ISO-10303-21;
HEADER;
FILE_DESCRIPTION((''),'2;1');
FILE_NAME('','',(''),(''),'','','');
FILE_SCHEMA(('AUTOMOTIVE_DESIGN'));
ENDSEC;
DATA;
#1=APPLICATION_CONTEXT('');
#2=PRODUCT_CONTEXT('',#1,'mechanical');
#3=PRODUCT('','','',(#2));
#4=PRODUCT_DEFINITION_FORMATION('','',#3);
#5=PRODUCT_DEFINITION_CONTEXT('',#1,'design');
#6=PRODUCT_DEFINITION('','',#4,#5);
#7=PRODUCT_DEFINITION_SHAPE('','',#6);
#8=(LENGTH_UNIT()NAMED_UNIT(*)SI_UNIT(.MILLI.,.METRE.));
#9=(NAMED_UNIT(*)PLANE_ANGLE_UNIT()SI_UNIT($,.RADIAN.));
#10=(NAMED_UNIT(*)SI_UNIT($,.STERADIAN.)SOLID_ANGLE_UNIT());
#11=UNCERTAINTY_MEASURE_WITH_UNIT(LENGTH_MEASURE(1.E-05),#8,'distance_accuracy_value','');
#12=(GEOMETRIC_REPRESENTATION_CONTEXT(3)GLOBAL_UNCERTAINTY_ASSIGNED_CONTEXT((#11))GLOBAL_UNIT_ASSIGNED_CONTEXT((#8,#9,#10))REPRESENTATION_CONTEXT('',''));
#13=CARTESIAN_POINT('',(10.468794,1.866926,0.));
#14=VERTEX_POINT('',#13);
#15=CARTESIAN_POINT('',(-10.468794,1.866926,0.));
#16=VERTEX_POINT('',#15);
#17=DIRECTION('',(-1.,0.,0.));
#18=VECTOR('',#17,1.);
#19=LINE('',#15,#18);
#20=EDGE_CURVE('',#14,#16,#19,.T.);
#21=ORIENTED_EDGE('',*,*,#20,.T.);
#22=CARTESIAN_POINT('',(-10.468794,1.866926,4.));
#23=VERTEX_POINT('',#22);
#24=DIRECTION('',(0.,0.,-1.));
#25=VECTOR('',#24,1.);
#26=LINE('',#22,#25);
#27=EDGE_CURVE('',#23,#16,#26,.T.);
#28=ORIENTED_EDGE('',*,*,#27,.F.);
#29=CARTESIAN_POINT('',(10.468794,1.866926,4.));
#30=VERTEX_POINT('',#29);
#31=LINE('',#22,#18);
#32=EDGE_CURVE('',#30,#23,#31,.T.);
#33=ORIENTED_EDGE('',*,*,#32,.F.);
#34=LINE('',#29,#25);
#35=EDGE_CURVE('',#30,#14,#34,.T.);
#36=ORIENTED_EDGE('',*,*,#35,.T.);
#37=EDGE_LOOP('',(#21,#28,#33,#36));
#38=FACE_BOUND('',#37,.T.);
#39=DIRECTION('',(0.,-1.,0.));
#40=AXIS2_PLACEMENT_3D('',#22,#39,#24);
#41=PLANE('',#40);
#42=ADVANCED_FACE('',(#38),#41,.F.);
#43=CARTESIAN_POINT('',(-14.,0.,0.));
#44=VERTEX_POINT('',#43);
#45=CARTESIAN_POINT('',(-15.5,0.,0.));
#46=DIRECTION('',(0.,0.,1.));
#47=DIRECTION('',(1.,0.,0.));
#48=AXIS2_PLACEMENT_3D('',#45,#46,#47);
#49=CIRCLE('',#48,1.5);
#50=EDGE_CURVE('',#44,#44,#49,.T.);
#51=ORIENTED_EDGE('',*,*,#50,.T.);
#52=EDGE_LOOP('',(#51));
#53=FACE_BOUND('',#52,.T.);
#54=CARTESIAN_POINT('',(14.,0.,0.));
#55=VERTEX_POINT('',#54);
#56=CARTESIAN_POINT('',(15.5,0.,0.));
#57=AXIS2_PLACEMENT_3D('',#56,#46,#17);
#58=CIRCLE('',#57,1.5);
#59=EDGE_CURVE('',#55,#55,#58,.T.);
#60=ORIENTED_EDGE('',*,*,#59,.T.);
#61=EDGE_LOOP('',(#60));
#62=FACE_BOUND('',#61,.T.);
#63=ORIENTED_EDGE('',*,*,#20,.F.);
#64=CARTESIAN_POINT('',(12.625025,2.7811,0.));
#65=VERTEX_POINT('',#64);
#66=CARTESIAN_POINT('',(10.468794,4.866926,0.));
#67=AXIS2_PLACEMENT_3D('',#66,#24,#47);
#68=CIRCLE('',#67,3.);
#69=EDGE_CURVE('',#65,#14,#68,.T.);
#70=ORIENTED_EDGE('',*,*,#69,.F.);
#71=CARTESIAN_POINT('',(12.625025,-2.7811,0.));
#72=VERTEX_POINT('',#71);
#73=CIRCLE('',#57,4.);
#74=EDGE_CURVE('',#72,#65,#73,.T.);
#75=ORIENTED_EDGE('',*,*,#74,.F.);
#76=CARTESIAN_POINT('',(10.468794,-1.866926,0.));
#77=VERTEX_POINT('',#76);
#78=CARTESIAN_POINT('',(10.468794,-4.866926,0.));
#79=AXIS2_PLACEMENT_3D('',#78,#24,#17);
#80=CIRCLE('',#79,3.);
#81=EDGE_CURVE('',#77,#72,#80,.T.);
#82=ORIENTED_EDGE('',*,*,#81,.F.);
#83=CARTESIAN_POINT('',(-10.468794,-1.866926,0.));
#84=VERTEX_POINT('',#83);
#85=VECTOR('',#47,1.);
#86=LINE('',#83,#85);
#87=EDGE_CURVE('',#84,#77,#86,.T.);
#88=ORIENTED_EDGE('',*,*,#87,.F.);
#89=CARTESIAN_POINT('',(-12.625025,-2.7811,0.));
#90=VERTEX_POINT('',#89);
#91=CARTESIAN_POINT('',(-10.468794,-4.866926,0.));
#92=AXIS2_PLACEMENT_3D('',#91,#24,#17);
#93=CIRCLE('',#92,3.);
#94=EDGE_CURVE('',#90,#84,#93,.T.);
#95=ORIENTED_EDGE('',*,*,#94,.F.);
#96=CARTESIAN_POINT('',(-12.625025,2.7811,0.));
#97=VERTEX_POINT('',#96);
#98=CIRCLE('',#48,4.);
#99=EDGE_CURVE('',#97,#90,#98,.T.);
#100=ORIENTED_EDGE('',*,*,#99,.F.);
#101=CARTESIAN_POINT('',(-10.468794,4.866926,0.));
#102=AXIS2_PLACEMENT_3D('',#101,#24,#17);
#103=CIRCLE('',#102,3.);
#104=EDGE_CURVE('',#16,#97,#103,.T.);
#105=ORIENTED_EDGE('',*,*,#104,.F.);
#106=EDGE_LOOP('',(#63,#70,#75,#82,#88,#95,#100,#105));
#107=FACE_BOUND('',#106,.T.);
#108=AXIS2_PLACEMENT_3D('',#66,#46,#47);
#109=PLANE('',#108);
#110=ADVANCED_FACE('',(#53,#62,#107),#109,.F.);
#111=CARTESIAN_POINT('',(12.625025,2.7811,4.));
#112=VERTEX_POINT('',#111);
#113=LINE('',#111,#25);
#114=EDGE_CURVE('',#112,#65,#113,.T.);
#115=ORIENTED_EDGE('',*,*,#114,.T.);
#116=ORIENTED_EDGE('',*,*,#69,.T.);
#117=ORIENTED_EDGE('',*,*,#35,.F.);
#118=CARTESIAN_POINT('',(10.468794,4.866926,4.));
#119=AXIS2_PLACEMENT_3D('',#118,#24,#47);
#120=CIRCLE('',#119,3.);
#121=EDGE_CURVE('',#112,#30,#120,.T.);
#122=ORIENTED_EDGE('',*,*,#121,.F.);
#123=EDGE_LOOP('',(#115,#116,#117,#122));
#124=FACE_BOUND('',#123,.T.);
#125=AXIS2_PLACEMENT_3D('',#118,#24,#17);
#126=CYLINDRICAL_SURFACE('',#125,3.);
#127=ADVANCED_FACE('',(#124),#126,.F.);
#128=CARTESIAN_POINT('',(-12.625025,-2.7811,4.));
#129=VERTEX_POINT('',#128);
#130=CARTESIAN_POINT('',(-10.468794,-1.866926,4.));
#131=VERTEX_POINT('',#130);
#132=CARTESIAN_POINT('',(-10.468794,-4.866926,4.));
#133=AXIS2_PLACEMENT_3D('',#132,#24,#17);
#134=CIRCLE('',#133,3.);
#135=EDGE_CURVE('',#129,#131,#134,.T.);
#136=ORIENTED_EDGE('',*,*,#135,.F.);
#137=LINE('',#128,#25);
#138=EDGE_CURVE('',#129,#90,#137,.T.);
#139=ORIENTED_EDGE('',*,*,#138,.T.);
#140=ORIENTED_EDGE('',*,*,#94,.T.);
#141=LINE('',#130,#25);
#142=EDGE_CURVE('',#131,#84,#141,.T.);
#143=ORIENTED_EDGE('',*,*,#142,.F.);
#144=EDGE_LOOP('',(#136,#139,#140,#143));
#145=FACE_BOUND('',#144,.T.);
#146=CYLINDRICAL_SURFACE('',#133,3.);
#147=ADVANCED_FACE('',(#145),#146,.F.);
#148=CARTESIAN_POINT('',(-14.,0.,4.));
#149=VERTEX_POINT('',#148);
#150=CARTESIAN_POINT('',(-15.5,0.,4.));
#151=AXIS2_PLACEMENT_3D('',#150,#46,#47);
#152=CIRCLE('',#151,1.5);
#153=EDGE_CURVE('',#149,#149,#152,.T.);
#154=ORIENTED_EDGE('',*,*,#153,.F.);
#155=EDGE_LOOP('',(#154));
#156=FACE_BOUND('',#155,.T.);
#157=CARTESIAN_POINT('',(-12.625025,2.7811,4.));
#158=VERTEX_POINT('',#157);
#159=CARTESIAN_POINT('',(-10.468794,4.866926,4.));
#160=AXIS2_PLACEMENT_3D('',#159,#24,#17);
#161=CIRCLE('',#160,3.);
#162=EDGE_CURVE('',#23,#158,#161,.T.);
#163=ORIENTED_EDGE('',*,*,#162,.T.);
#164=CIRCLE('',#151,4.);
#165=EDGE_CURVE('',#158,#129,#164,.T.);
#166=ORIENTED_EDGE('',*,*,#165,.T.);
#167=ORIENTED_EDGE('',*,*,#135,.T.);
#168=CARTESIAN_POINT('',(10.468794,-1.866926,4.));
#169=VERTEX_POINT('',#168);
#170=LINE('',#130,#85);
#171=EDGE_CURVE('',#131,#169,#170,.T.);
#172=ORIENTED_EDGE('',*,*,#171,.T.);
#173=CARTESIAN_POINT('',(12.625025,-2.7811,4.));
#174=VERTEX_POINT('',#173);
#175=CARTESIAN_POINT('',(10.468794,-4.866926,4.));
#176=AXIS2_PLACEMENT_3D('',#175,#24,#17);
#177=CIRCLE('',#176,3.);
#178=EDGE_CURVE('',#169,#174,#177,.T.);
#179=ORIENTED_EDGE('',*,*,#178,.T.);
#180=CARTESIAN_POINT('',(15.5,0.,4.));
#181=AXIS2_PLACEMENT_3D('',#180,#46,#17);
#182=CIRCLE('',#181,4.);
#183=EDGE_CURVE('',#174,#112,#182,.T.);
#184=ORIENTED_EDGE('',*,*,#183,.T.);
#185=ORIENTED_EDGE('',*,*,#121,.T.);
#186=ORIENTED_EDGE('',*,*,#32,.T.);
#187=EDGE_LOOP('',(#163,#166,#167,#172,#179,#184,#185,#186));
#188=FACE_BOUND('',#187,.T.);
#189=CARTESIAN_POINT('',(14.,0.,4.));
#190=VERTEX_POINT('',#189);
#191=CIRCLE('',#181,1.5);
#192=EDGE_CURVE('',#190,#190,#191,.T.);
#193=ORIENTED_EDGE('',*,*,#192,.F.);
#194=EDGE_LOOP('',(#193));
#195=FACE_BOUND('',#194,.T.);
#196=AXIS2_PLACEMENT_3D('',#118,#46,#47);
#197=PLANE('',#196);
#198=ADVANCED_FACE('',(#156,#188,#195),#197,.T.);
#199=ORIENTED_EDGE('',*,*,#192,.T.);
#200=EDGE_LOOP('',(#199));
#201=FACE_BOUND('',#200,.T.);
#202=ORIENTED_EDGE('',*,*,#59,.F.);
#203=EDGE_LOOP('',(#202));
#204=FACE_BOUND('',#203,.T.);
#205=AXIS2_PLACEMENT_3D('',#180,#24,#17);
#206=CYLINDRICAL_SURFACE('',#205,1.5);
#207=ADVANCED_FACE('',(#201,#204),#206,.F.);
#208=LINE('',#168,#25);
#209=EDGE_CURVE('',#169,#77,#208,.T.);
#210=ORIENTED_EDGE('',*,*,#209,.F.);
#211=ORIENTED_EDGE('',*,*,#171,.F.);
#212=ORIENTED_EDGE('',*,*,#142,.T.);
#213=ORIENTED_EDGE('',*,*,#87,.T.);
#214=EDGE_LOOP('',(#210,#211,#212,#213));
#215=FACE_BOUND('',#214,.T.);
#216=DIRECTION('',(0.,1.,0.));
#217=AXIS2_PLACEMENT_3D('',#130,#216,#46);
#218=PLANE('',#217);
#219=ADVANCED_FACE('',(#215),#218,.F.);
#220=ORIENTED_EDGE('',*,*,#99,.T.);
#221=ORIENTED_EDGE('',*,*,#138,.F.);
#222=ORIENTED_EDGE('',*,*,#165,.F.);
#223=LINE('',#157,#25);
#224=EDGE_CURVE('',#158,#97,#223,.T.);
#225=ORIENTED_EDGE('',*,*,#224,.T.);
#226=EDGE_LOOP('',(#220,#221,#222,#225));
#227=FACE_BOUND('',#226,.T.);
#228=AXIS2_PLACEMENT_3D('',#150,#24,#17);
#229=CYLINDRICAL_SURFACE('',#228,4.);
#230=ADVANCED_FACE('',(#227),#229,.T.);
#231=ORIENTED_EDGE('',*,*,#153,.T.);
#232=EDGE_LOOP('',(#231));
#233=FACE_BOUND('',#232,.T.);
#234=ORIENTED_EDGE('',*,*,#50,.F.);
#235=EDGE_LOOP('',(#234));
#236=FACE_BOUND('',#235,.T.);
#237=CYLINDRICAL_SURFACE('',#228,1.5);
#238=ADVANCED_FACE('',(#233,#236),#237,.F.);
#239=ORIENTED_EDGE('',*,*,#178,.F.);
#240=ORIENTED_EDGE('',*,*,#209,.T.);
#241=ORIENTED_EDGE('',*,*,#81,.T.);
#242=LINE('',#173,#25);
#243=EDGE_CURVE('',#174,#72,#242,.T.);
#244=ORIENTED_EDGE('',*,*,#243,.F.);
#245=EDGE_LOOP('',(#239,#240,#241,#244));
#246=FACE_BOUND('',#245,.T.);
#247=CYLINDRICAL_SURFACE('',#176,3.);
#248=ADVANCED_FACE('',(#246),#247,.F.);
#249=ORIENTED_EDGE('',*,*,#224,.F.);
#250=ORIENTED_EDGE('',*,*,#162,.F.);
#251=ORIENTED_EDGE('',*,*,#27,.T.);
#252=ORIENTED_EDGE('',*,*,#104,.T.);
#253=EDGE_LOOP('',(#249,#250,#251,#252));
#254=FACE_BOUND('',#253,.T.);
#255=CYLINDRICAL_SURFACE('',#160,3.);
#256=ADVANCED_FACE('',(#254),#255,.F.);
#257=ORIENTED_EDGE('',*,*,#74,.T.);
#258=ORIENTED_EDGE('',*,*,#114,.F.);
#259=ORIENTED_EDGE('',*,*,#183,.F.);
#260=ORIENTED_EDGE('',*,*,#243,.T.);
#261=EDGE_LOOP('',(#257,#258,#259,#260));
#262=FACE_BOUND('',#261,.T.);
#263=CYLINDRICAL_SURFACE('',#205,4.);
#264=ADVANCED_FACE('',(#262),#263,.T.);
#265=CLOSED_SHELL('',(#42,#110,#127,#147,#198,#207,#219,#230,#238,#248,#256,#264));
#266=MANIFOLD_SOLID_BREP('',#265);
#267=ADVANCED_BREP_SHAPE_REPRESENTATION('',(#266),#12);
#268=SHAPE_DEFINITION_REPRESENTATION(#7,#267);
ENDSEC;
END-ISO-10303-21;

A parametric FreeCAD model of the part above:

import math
import FreeCAD as App
import Part
import Sketcher
from FreeCAD import Vector

doc = App.newDocument("Part")
body = doc.addObject("PartDesign::Body", "Body")

# Sketch on XY plane
sketch1 = body.newObject("Sketcher::SketchObject", "Sketch")
sketch1.AttachmentSupport = (doc.getObject("XY_Plane"), [""])
sketch1.MapMode = "FlatFace"
sketch1.addGeometry([
    Part.LineSegment(Vector(10.5, 1.9, 0), Vector(-10.5, 1.9, 0)),  # 0
    Part.ArcOfCircle(Part.Circle(Vector(-10.5, 4.9, 0), Vector(0, 0, 1), 3), math.radians(-136), math.radians(-90)),  # 1
    Part.ArcOfCircle(Part.Circle(Vector(-15.5, 0, 0), Vector(0, 0, 1), 4), math.radians(44), math.radians(316)),  # 2
    Part.ArcOfCircle(Part.Circle(Vector(-10.5, -4.9, 0), Vector(0, 0, 1), 3), math.radians(90), math.radians(136)),  # 3
    Part.LineSegment(Vector(-10.5, -1.9, 0), Vector(10.5, -1.9, 0)),  # 4
    Part.ArcOfCircle(Part.Circle(Vector(10.5, -4.9, 0), Vector(0, 0, 1), 3), math.radians(44), math.radians(90)),  # 5
    Part.ArcOfCircle(Part.Circle(Vector(15.5, 0, 0), Vector(0, 0, 1), 4), math.radians(-136), math.radians(136)),  # 6
    Part.ArcOfCircle(Part.Circle(Vector(10.5, 4.9, 0), Vector(0, 0, 1), 3), math.radians(-90), math.radians(-44)),  # 7
    Part.Circle(Vector(15.5, 0, 0), Vector(0, 0, 1), 1.5),  # 8
    Part.Circle(Vector(-15.5, 0, 0), Vector(0, 0, 1), 1.5),  # 9
], False)
sketch1.addConstraint([
    Sketcher.Constraint("Tangent", 0, 2, 1, 2),
    Sketcher.Constraint("Tangent", 1, 1, 2, 1),
    Sketcher.Constraint("Tangent", 2, 2, 3, 2),
    Sketcher.Constraint("Tangent", 3, 1, 4, 1),
    Sketcher.Constraint("Tangent", 4, 2, 5, 2),
    Sketcher.Constraint("Tangent", 5, 1, 6, 1),
    Sketcher.Constraint("Tangent", 6, 2, 7, 2),
    Sketcher.Constraint("Tangent", 7, 1, 0, 1),
    Sketcher.Constraint("Horizontal", 0),
    Sketcher.Constraint("Horizontal", 4),
    Sketcher.Constraint("Coincident", 8, 3, 6, 3),
    Sketcher.Constraint("Coincident", 9, 3, 2, 3),
    Sketcher.Constraint("Equal", 1, 3),
    Sketcher.Constraint("Equal", 3, 5),
    Sketcher.Constraint("Equal", 2, 6),
    Sketcher.Constraint("Equal", 5, 7),
    Sketcher.Constraint("Equal", 8, 9),
    Sketcher.Constraint("Symmetric", 1, 3, 5, 3, -1, 1),
    Sketcher.Constraint("Symmetric", 2, 3, 6, 3, -2),
    Sketcher.Constraint("Diameter", 8, 3.0),
    Sketcher.Constraint("Radius", 1, 3.0),
    Sketcher.Constraint("Radius", 2, 4.0),
    Sketcher.Constraint("DistanceX", 2, 3, 6, 3, 31.0),
    Sketcher.Constraint("DistanceY", -1, 1, 1, 1, 2.7811),
])
pad1 = body.newObject("PartDesign::Pad", "Pad")
pad1.Profile = sketch1
pad1.Length = 4

doc.recompute()
